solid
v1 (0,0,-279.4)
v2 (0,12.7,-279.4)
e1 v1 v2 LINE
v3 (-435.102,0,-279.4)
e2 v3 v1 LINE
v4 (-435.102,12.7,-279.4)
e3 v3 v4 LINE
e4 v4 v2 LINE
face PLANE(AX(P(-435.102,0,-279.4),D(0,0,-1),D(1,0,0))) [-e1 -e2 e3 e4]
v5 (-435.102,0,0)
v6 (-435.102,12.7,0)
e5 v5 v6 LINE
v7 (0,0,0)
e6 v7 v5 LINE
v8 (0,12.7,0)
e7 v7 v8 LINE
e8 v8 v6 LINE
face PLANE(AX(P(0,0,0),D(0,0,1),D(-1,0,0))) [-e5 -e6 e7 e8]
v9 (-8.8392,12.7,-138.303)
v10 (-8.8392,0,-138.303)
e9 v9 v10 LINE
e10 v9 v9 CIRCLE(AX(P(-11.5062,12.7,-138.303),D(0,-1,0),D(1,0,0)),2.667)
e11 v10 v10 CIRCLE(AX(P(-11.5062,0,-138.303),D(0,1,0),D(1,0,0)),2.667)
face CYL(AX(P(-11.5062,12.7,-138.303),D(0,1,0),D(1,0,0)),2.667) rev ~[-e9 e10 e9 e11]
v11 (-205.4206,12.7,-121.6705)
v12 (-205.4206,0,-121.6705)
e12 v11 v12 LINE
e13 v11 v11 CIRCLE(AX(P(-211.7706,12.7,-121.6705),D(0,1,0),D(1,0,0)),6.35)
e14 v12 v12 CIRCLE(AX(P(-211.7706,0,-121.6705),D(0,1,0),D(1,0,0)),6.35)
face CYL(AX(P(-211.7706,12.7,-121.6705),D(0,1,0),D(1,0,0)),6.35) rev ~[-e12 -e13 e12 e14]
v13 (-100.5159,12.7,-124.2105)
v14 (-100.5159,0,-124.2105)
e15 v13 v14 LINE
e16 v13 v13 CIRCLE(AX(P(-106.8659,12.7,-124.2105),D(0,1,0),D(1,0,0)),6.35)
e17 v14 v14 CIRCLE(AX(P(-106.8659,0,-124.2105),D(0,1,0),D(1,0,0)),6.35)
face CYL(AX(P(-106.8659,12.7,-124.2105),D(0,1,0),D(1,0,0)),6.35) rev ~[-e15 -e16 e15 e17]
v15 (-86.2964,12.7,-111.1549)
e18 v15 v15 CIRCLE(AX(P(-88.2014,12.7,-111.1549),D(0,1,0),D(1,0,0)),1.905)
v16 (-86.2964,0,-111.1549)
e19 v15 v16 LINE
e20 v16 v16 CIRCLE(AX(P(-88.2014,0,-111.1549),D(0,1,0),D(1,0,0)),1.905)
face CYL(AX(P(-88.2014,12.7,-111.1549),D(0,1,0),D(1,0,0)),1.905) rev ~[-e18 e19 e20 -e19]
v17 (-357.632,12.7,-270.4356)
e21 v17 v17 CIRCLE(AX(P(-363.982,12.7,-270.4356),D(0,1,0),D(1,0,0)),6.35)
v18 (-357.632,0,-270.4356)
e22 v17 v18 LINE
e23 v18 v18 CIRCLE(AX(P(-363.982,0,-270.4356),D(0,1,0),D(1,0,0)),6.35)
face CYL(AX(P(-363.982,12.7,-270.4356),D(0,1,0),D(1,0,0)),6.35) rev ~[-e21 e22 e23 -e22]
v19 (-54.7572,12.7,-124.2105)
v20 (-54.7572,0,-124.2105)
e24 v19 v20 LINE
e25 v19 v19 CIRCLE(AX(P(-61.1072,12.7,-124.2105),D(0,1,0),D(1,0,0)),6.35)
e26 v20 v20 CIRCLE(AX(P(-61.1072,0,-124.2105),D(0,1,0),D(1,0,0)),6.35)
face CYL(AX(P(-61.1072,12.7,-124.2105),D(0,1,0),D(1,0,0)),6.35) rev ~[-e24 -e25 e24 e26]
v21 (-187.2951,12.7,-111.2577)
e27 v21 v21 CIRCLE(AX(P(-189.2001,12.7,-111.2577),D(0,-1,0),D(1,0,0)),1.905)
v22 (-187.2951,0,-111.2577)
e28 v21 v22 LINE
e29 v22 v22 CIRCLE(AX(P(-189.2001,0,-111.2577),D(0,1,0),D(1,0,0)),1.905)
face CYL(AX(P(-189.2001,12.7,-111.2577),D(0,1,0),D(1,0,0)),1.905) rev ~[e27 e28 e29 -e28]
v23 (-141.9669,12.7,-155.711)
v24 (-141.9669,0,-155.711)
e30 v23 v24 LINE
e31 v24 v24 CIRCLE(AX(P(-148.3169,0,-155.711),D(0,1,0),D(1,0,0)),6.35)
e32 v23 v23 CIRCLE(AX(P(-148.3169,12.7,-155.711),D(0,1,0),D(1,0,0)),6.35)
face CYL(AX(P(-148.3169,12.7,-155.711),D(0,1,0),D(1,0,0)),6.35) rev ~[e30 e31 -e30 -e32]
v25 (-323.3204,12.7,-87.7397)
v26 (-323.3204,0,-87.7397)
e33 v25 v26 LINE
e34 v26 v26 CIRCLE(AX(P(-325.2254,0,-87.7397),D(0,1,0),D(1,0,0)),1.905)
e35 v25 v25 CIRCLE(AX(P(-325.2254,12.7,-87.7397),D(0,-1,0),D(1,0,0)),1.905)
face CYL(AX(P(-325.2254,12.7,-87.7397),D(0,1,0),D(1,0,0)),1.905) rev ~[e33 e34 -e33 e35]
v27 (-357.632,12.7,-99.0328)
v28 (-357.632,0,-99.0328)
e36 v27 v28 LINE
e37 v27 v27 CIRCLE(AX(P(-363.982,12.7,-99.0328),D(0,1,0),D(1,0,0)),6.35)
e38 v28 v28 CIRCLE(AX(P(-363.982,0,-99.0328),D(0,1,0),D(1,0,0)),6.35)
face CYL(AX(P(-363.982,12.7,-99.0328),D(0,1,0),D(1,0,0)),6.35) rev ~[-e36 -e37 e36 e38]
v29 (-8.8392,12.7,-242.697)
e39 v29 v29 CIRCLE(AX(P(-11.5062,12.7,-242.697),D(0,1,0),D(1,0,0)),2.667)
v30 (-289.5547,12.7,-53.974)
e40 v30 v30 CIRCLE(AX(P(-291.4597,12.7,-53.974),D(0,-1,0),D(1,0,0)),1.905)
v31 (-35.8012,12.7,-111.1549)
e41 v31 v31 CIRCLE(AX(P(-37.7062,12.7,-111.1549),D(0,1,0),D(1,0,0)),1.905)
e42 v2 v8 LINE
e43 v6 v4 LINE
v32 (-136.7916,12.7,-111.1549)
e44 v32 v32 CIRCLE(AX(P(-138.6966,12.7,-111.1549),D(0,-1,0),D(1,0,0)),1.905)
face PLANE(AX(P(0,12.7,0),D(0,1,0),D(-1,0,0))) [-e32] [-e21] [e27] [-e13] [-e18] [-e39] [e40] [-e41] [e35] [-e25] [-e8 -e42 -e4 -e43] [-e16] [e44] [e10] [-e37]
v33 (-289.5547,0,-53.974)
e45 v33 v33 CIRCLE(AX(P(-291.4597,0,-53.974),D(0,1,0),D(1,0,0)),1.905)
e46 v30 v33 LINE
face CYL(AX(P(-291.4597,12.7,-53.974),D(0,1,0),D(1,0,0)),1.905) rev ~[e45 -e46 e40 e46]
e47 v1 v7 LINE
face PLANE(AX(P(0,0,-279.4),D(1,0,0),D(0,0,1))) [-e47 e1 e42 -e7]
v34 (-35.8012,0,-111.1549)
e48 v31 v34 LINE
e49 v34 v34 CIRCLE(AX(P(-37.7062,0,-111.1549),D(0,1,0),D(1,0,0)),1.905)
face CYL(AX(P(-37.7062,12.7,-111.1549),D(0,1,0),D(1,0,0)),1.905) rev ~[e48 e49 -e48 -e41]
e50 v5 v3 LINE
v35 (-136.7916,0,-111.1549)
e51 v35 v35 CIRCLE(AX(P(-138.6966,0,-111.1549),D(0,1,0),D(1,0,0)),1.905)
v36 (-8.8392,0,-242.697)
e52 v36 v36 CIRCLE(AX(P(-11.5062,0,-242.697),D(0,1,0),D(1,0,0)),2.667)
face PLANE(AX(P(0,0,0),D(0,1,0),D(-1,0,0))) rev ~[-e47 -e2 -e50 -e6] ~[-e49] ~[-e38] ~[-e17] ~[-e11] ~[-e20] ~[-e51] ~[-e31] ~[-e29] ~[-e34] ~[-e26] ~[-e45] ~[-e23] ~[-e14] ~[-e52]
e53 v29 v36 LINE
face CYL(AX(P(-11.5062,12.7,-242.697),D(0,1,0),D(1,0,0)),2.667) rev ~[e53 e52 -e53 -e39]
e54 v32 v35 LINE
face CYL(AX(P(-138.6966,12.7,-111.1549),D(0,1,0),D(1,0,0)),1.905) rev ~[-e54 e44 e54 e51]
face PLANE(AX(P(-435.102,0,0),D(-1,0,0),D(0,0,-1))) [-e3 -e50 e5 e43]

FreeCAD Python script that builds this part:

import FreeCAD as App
import Part
import Sketcher

V = App.Vector
Q = App.Units.Quantity

doc = App.newDocument("Part")
body = doc.addObject("PartDesign::Body", "Body")
body.AllowCompound = True

sketch1 = doc.addObject("Sketcher::SketchObject", "Sketch")
body.addObject(sketch1)
sketch1.AttachmentSupport = (doc.XZ_Plane, [""])
sketch1.MapMode = "FlatFace"
sketch1.addGeometry([
    Part.LineSegment(V(-435.102, 0, 0), V(0, 0, 0)),
    Part.LineSegment(V(0, 0, 0), V(0, -279.4, 0)),
    Part.LineSegment(V(0, -279.4, 0), V(-435.102, -279.4, 0)),
    Part.LineSegment(V(-435.102, -279.4, 0), V(-435.102, 0, 0)),
], False)
sketch1.addConstraint([
    Sketcher.Constraint("Coincident", 0, 2, 1, 1),
    Sketcher.Constraint("Coincident", 1, 2, 2, 1),
    Sketcher.Constraint("Coincident", 2, 2, 3, 1),
    Sketcher.Constraint("Coincident", 3, 2, 0, 1),
    Sketcher.Constraint("Horizontal", 0),
    Sketcher.Constraint("Vertical", 1),
    Sketcher.Constraint("Horizontal", 2),
    Sketcher.Constraint("Vertical", 3),
    Sketcher.Constraint("Coincident", 0, 2, -1, 1),
    Sketcher.Constraint("DistanceY", 1, 2, 1, 1, Q("11 in")),
    Sketcher.Constraint("DistanceX", 0, 1, 0, 2, Q("17.13 in")),
])
pad1 = doc.addObject("PartDesign::Pad", "Pad")
body.addObject(pad1)
pad1.Profile = sketch1
pad1.Length = Q("0.5 in")
pad1.Reversed = True

sketch2 = doc.addObject("Sketcher::SketchObject", "Sketch001")
body.addObject(sketch2)
sketch2.AttachmentSupport = (doc.XZ_Plane, [""])
sketch2.MapMode = "FlatFace"
sketch2.AttachmentOffset = App.Placement(V(0, 0, -0.5 * 25.4), App.Rotation())
sketch2.addGeometry([
    Part.Circle(V(-11.5062, -138.303, 0), V(0, 0, 1), 2.667),
    Part.Circle(V(-11.5062, -242.697, 0), V(0, 0, 1), 2.667),
], False)
sketch2.addConstraint([
    Sketcher.Constraint("Equal", 0, 1),
    Sketcher.Constraint("Vertical", 0, 3, 1, 3),
    Sketcher.Constraint("Diameter", 0, Q("0.21 in")),
    Sketcher.Constraint("DistanceX", 0, 3, -1, 1, Q("0.453 in")),
    Sketcher.Constraint("DistanceY", 1, 3, 0, 3, Q("4.11 in")),
    Sketcher.Constraint("DistanceY", 0, 3, -1, 1, Q("5.445 in")),
])
pocket1 = doc.addObject("PartDesign::Pocket", "Pocket")
body.addObject(pocket1)
pocket1.Profile = sketch2
pocket1.Length = Q("0.5 in")
pocket1.Reversed = True

sketch3 = doc.addObject("Sketcher::SketchObject", "Sketch002")
body.addObject(sketch3)
sketch3.AttachmentSupport = (doc.XZ_Plane, [""])
sketch3.MapMode = "FlatFace"
sketch3.AttachmentOffset = App.Placement(V(0, 0, -0.5 * 25.4), App.Rotation())
sketch3.addGeometry([
    Part.Circle(V(-228.6, -165.4048, 0), V(0, 0, 1), 1.905),
    Part.Circle(V(-276.352, -165.4048, 0), V(0, 0, 1), 1.905),
], False)
sketch3.addConstraint([
    Sketcher.Constraint("Equal", 0, 1),
    Sketcher.Constraint("Horizontal", 0, 3, 1, 3),
    Sketcher.Constraint("Diameter", 0, Q("0.15 in")),
    Sketcher.Constraint("DistanceX", 1, 3, 0, 3, Q("1.88 in")),
    Sketcher.Constraint("DistanceX", 0, 3, -1, 1, Q("9 in")),
    Sketcher.Constraint("DistanceY", 0, 3, -1, 1, Q("6.512 in")),
])
pocket2 = doc.addObject("PartDesign::Pocket", "Pocket001")
body.addObject(pocket2)
pocket2.Profile = sketch3
pocket2.Length = Q("1 in")
pocket2.Reversed = True

sketch4 = doc.addObject("Sketcher::SketchObject", "Sketch003")
body.addObject(sketch4)
sketch4.AttachmentSupport = (doc.XZ_Plane, [""])
sketch4.MapMode = "FlatFace"
sketch4.AttachmentOffset = App.Placement(V(0, 0, -0.5 * 25.4), App.Rotation())
sketch4.addGeometry(Part.Circle(V(-73.9111, -98.5347, 0), V(0, 0, 1), 1.9812), False)
sketch4.addConstraint([
    Sketcher.Constraint("Diameter", 0, Q("0.156 in")),
    Sketcher.Constraint("DistanceX", 0, 3, -1, 1, Q("73.911 mm")),
    Sketcher.Constraint("DistanceY", 0, 3, -1, 1, Q("98.5347 mm")),
])
pad2 = doc.addObject("PartDesign::Pad", "Pad001")
body.addObject(pad2)
pad2.Profile = sketch4
pad2.Length = Q("0.5 in")

sketch5 = doc.addObject("Sketcher::SketchObject", "Sketch004")
body.addObject(sketch5)
sketch5.AttachmentSupport = (doc.XZ_Plane, [""])
sketch5.MapMode = "FlatFace"
sketch5.AttachmentOffset = App.Placement(V(0, 0, -0.5 * 25.4), App.Rotation())
sketch5.addGeometry(Part.Circle(V(-189.4966, -96.5535, 0), V(0, 0, 1), 1.905), False)
sketch5.addConstraint([
    Sketcher.Constraint("Diameter", 0, Q("0.15 in")),
    Sketcher.Constraint("DistanceX", 0, 3, -1, 1, Q("7.4605 in")),
    Sketcher.Constraint("DistanceY", 0, 3, -1, 1, Q("96.5535 mm")),
])
pocket3 = doc.addObject("PartDesign::Pocket", "Pocket002")
body.addObject(pocket3)
pocket3.Profile = sketch5
pocket3.Length = Q("0.5 in")
pocket3.Reversed = True

sketch6 = doc.addObject("Sketcher::SketchObject", "Sketch005")
body.addObject(sketch6)
sketch6.AttachmentSupport = (doc.XZ_Plane, [""])
sketch6.MapMode = "FlatFace"
sketch6.AttachmentOffset = App.Placement(V(0, 0, -0.5 * 25.4), App.Rotation())
sketch6.addGeometry([
    Part.Circle(V(-111.9102, -274.9457, 0), V(0, 0, 1), 1.9812),
    Part.Circle(V(-50.2837, -276.9269, 0), V(0, 0, 1), 1.9812),
], False)
sketch6.addConstraint([
    Sketcher.Constraint("Equal", 0, 1),
    Sketcher.Constraint("Diameter", 0, Q("0.156 in")),
    Sketcher.Constraint("DistanceY", 1, 3, 0, 3, Q("0.078 in")),
    Sketcher.Constraint("DistanceX", 0, 3, -1, 1, Q("111.9102 mm")),
    Sketcher.Constraint("DistanceY", 0, 3, -1, 1, Q("274.9457 mm")),
    Sketcher.Constraint("DistanceX", 1, 3, -1, 1, Q("50.2837 mm")),
])
pad3 = doc.addObject("PartDesign::Pad", "Pad002")
body.addObject(pad3)
pad3.Profile = sketch6
pad3.Length = Q("0.5 in")

sketch7 = doc.addObject("Sketcher::SketchObject", "Sketch006")
body.addObject(sketch7)
sketch7.AttachmentSupport = (doc.XZ_Plane, [""])
sketch7.MapMode = "FlatFace"
sketch7.AttachmentOffset = App.Placement(V(0, 0, -0.5 * 25.4), App.Rotation())
sketch7.addGeometry([
    Part.Circle(V(-138.6966, -273.3548, 0), V(0, 0, 1), 1.905),
    Part.Circle(V(-189.4966, -273.3548, 0), V(0, 0, 1), 1.905),
], False)
sketch7.addConstraint([
    Sketcher.Constraint("Equal", 0, 1),
    Sketcher.Constraint("Horizontal", 0, 3, 1, 3),
    Sketcher.Constraint("Diameter", 0, Q("0.15 in")),
    Sketcher.Constraint("DistanceX", 1, 3, 0, 3, Q("2 in")),
    Sketcher.Constraint("DistanceY", 0, 3, -1, 1, Q("10.762 in")),
    Sketcher.Constraint("DistanceX", 0, 3, -1, 1, Q("5.4605 in")),
])
pocket4 = doc.addObject("PartDesign::Pocket", "Pocket003")
body.addObject(pocket4)
pocket4.Profile = sketch7
pocket4.Length = Q("0.5 in")
pocket4.Reversed = True

sketch8 = doc.addObject("Sketcher::SketchObject", "Sketch007")
body.addObject(sketch8)
sketch8.AttachmentSupport = (doc.XZ_Plane, [""])
sketch8.MapMode = "FlatFace"
sketch8.addGeometry([
    Part.Circle(V(-189.4966, -273.3548, 0), V(0, 0, 1), 1.905),
    Part.Circle(V(-138.6966, -273.3548, 0), V(0, 0, 1), 1.905),
], False)
sketch8.addConstraint([
    Sketcher.Constraint("Equal", 0, 1),
    Sketcher.Constraint("Horizontal", 0, 3, 1, 3),
    Sketcher.Constraint("Diameter", 0, Q("0.15 in")),
    Sketcher.Constraint("DistanceX", 0, 3, 1, 3, Q("2 in")),
    Sketcher.Constraint("DistanceY", 0, 3, -1, 1, Q("10.762 in")),
    Sketcher.Constraint("DistanceX", 0, 3, -1, 1, Q("7.4605 in")),
])
pad4 = doc.addObject("PartDesign::Pad", "Pad003")
body.addObject(pad4)
pad4.Profile = sketch8
pad4.Length = Q("0.5 in")
pad4.Reversed = True

sketch9 = doc.addObject("Sketcher::SketchObject", "Sketch008")
body.addObject(sketch9)
sketch9.AttachmentSupport = (doc.XZ_Plane, [""])
sketch9.MapMode = "FlatFace"
sketch9.AttachmentOffset = App.Placement(V(0, 0, -0.5 * 25.4), App.Rotation())
sketch9.addGeometry([
    Part.Circle(V(-301.5668, -273.3548, 0), V(0, 0, 1), 1.905),
    Part.Circle(V(-253.8148, -273.3548, 0), V(0, 0, 1), 1.905),
], False)
sketch9.addConstraint([
    Sketcher.Constraint("Equal", 0, 1),
    Sketcher.Constraint("Horizontal", 0, 3, 1, 3),
    Sketcher.Constraint("Diameter", 0, Q("0.15 in")),
    Sketcher.Constraint("DistanceX", 0, 3, 1, 3, Q("1.88 in")),
    Sketcher.Constraint("DistanceY", 0, 3, -1, 1, Q("10.762 in")),
    Sketcher.Constraint("DistanceX", 0, 3, -1, 1, Q("11.8727 in")),
])
pocket5 = doc.addObject("PartDesign::Pocket", "Pocket004")
body.addObject(pocket5)
pocket5.Profile = sketch9
pocket5.Length = Q("0.5 in")
pocket5.Reversed = True

sketch10 = doc.addObject("Sketcher::SketchObject", "Sketch009")
body.addObject(sketch10)
sketch10.AttachmentSupport = (doc.XZ_Plane, [""])
sketch10.MapMode = "FlatFace"
sketch10.AttachmentOffset = App.Placement(V(0, 0, -0.5 * 25.4), App.Rotation())
sketch10.addGeometry([
    Part.Circle(V(-228.6, -165.4048, 0), V(0, 0, 1), 1.905),
    Part.Circle(V(-276.352, -165.4048, 0), V(0, 0, 1), 1.905),
], False)
sketch10.addConstraint([
    Sketcher.Constraint("Equal", 0, 1),
    Sketcher.Constraint("Horizontal", 0, 3, 1, 3),
    Sketcher.Constraint("Diameter", 0, Q("0.15 in")),
    Sketcher.Constraint("DistanceX", 0, 3, -1, 1, Q("9 in")),
    Sketcher.Constraint("DistanceX", 1, 3, -1, 1, Q("10.88 in")),
    Sketcher.Constraint("DistanceY", 0, 3, -1, 1, Q("6.512 in")),
])
pad5 = doc.addObject("PartDesign::Pad", "Pad004")
body.addObject(pad5)
pad5.Profile = sketch10
pad5.Length = Q("0.5 in")

sketch11 = doc.addObject("Sketcher::SketchObject", "Sketch010")
body.addObject(sketch11)
sketch11.AttachmentSupport = (doc.XZ_Plane, [""])
sketch11.MapMode = "FlatFace"
sketch11.AttachmentOffset = App.Placement(V(0, 0, -0.5 * 25.4), App.Rotation())
sketch11.addGeometry([
    Part.Circle(V(-154.6206, -259.3143, 0), V(0, 0, 1), 6.35),
    Part.Circle(V(-199.1169, -258.3518, 0), V(0, 0, 1), 6.35),
    Part.Circle(V(-211.7706, -121.6705, 0), V(0, 0, 1), 6.35),
    Part.Circle(V(-148.3169, -155.711, 0), V(0, 0, 1), 6.35),
], False)
sketch11.addConstraint([
    Sketcher.Constraint("Equal", 0, 1),
    Sketcher.Constraint("Equal", 1, 2),
    Sketcher.Constraint("Equal", 2, 3),
    Sketcher.Constraint("Diameter", 0, Q("0.5 in")),
    Sketcher.Constraint("DistanceX", 1, 3, 3, 3, Q("2 in")),
    Sketcher.Constraint("DistanceX", 2, 3, 0, 3, Q("2.25 in")),
    Sketcher.Constraint("DistanceY", 0, 3, 1, 3, Q("0.0379 in")),
    Sketcher.Constraint("DistanceX", 0, 3, -1, 1, Q("154.6206 mm")),
    Sketcher.Constraint("DistanceY", 0, 3, -1, 1, Q("259.3143 mm")),
    Sketcher.Constraint("DistanceX", 1, 3, -1, 1, Q("199.117 mm")),
    Sketcher.Constraint("DistanceY", 2, 3, -1, 1, Q("121.6705 mm")),
    Sketcher.Constraint("DistanceY", 3, 3, -1, 1, Q("155.711 mm")),
])
pocket6 = doc.addObject("PartDesign::Pocket", "Pocket005")
body.addObject(pocket6)
pocket6.Profile = sketch11
pocket6.Length = Q("0.5 in")
pocket6.Reversed = True

sketch12 = doc.addObject("Sketcher::SketchObject", "Sketch011")
body.addObject(sketch12)
sketch12.AttachmentSupport = (doc.XZ_Plane, [""])
sketch12.MapMode = "FlatFace"
sketch12.AttachmentOffset = App.Placement(V(0, 0, -0.5 * 25.4), App.Rotation())
sketch12.addGeometry([
    Part.Circle(V(-363.982, -270.4356, 0), V(0, 0, 1), 6.35),
    Part.Circle(V(-363.982, -99.0328, 0), V(0, 0, 1), 6.35),
], False)
sketch12.addConstraint([
    Sketcher.Constraint("Equal", 0, 1),
    Sketcher.Constraint("Vertical", 0, 3, 1, 3),
    Sketcher.Constraint("Diameter", 0, Q("0.5 in")),
    Sketcher.Constraint("DistanceX", 0, 3, -1, 1, Q("14.33 in")),
    Sketcher.Constraint("DistanceY", 0, 3, -1, 1, Q("270.4356 mm")),
    Sketcher.Constraint("DistanceY", 1, 3, -1, 1, Q("99.0328 mm")),
])
pocket7 = doc.addObject("PartDesign::Pocket", "Pocket006")
body.addObject(pocket7)
pocket7.Profile = sketch12
pocket7.Length = Q("0.5 in")
pocket7.Reversed = True

sketch13 = doc.addObject("Sketcher::SketchObject", "Sketch012")
body.addObject(sketch13)
sketch13.AttachmentSupport = (doc.XZ_Plane, [""])
sketch13.MapMode = "FlatFace"
sketch13.AttachmentOffset = App.Placement(V(0, 0, -0.5 * 25.4), App.Rotation())
sketch13.addGeometry([
    Part.Circle(V(-138.6966, -111.1549, 0), V(0, 0, 1), 1.905),
    Part.Circle(V(-189.2001, -111.2577, 0), V(0, 0, 1), 1.905),
], False)
sketch13.addConstraint([
    Sketcher.Constraint("Equal", 0, 1),
    Sketcher.Constraint("Diameter", 0, Q("0.15 in")),
    Sketcher.Constraint("DistanceX", 0, 3, -1, 1, Q("5.4605 in")),
    Sketcher.Constraint("DistanceY", 0, 3, -1, 1, Q("111.155 mm")),
    Sketcher.Constraint("DistanceX", 1, 3, -1, 1, Q("189.2 mm")),
    Sketcher.Constraint("DistanceY", 1, 3, -1, 1, Q("111.2577 mm")),
])
pocket8 = doc.addObject("PartDesign::Pocket", "Pocket007")
body.addObject(pocket8)
pocket8.Profile = sketch13
pocket8.Length = Q("0.5 in")
pocket8.Reversed = True

sketch14 = doc.addObject("Sketcher::SketchObject", "Sketch013")
body.addObject(sketch14)
sketch14.AttachmentSupport = (doc.XZ_Plane, [""])
sketch14.MapMode = "FlatFace"
sketch14.AttachmentOffset = App.Placement(V(0, 0, -0.5 * 25.4), App.Rotation())
sketch14.addGeometry([
    Part.Circle(V(-138.6966, -289.5514, 0), V(0, 0, 1), 1.905),
    Part.Circle(V(-189.4966, -291.4564, 0), V(0, 0, 1), 1.905),
    Part.Circle(V(-253.8148, -273.3548, 0), V(0, 0, 1), 1.905),
    Part.Circle(V(-301.5668, -273.3548, 0), V(0, 0, 1), 1.905),
    Part.Circle(V(-189.4966, -96.5535, 0), V(0, 0, 1), 1.905),
    Part.Circle(V(-138.6966, -96.5535, 0), V(0, 0, 1), 1.9812),
], False)
sketch14.addConstraint([
    Sketcher.Constraint("Equal", 0, 1),
    Sketcher.Constraint("Equal", 1, 2),
    Sketcher.Constraint("Equal", 2, 3),
    Sketcher.Constraint("Equal", 3, 4),
    Sketcher.Constraint("Horizontal", 2, 3, 3, 3),
    Sketcher.Constraint("Horizontal", 4, 3, 5, 3),
    Sketcher.Constraint("Vertical", 1, 3, 4, 3),
    Sketcher.Constraint("Vertical", 0, 3, 5, 3),
    Sketcher.Constraint("Diameter", 0, Q("0.15 in")),
    Sketcher.Constraint("Diameter", 5, Q("0.156 in")),
    Sketcher.Constraint("DistanceX", 1, 3, 0, 3, Q("2 in")),
    Sketcher.Constraint("DistanceX", 3, 3, 2, 3, Q("1.88 in")),
    Sketcher.Constraint("DistanceY", 2, 3, -1, 1, Q("10.762 in")),
    Sketcher.Constraint("DistanceY", 1, 3, 0, 3, Q("0.075 in")),
    Sketcher.Constraint("DistanceX", 0, 3, -1, 1, Q("5.4605 in")),
    Sketcher.Constraint("DistanceX", 2, 3, -1, 1, Q("9.9927 in")),
    Sketcher.Constraint("DistanceY", 0, 3, -1, 1, Q("289.5514 mm")),
    Sketcher.Constraint("DistanceY", 4, 3, -1, 1, Q("96.5535 mm")),
])
pad6 = doc.addObject("PartDesign::Pad", "Pad005")
body.addObject(pad6)
pad6.Profile = sketch14
pad6.Length = Q("0.5 in")

sketch15 = doc.addObject("Sketcher::SketchObject", "Sketch014")
body.addObject(sketch15)
sketch15.AttachmentSupport = (doc.XZ_Plane, [""])
sketch15.MapMode = "FlatFace"
sketch15.AttachmentOffset = App.Placement(V(0, 0, -0.5 * 25.4), App.Rotation())
sketch15.addGeometry([
    Part.Circle(V(-138.6966, -289.5514, 0), V(0, 0, 1), 1.905),
    Part.Circle(V(-189.4966, -291.4564, 0), V(0, 0, 1), 1.905),
], False)
sketch15.addConstraint([
    Sketcher.Constraint("Equal", 0, 1),
    Sketcher.Constraint("Diameter", 0, Q("0.15 in")),
    Sketcher.Constraint("DistanceX", 1, 3, 0, 3, Q("2 in")),
    Sketcher.Constraint("DistanceY", 1, 3, 0, 3, Q("0.075 in")),
    Sketcher.Constraint("DistanceX", 0, 3, -1, 1, Q("5.4605 in")),
    Sketcher.Constraint("DistanceY", 0, 3, -1, 1, Q("289.5514 mm")),
])
pocket9 = doc.addObject("PartDesign::Pocket", "Pocket008")
body.addObject(pocket9)
pocket9.Profile = sketch15
pocket9.Length = Q("0.5 in")
pocket9.Reversed = True

sketch16 = doc.addObject("Sketcher::SketchObject", "Sketch015")
body.addObject(sketch16)
sketch16.AttachmentSupport = (doc.XZ_Plane, [""])
sketch16.MapMode = "FlatFace"
sketch16.AttachmentOffset = App.Placement(V(0, 0, -0.5 * 25.4), App.Rotation())
sketch16.addGeometry([
    Part.Circle(V(-325.2254, -87.7397, 0), V(0, 0, 1), 1.905),
    Part.Circle(V(-291.4597, -53.974, 0), V(0, 0, 1), 1.905),
], False)
sketch16.addConstraint([
    Sketcher.Constraint("Equal", 0, 1),
    Sketcher.Constraint("Diameter", 0, Q("0.15 in")),
    Sketcher.Constraint("DistanceX", 1, 3, -1, 1, Q("11.4748 in")),
    Sketcher.Constraint("DistanceX", 0, 3, -1, 1, Q("325.2254 mm")),
    Sketcher.Constraint("DistanceY", 0, 3, -1, 1, Q("87.7397 mm")),
    Sketcher.Constraint("DistanceY", 1, 3, -1, 1, Q("53.974 mm")),
])
pocket10 = doc.addObject("PartDesign::Pocket", "Pocket009")
body.addObject(pocket10)
pocket10.Profile = sketch16
pocket10.Length = Q("0.5 in")
pocket10.Reversed = True

sketch17 = doc.addObject("Sketcher::SketchObject", "Sketch016")
body.addObject(sketch17)
sketch17.AttachmentSupport = (doc.XZ_Plane, [""])
sketch17.MapMode = "FlatFace"
sketch17.AttachmentOffset = App.Placement(V(0, 0, -0.5 * 25.4), App.Rotation())
sketch17.addGeometry([
    Part.Circle(V(-88.2014, -111.1549, 0), V(0, 0, 1), 1.905),
    Part.Circle(V(-37.7062, -111.1549, 0), V(0, 0, 1), 1.905),
], False)
sketch17.addConstraint([
    Sketcher.Constraint("Equal", 0, 1),
    Sketcher.Constraint("Horizontal", 0, 3, 1, 3),
    Sketcher.Constraint("Diameter", 0, Q("0.15 in")),
    Sketcher.Constraint("DistanceX", 0, 3, 1, 3, Q("1.988 in")),
    Sketcher.Constraint("DistanceX", 0, 3, -1, 1, Q("3.4725 in")),
    Sketcher.Constraint("DistanceY", 0, 3, -1, 1, Q("111.155 mm")),
])
pocket11 = doc.addObject("PartDesign::Pocket", "Pocket010")
body.addObject(pocket11)
pocket11.Profile = sketch17
pocket11.Length = Q("0.5 in")
pocket11.Reversed = True

sketch18 = doc.addObject("Sketcher::SketchObject", "Sketch017")
body.addObject(sketch18)
sketch18.AttachmentSupport = (doc.XZ_Plane, [""])
sketch18.MapMode = "FlatFace"
sketch18.AttachmentOffset = App.Placement(V(0, 0, -0.5 * 25.4), App.Rotation())
sketch18.addGeometry([
    Part.Circle(V(-106.8659, -124.2105, 0), V(0, 0, 1), 6.35),
    Part.Circle(V(-61.1072, -124.2105, 0), V(0, 0, 1), 6.35),
], False)
sketch18.addConstraint([
    Sketcher.Constraint("Equal", 0, 1),
    Sketcher.Constraint("Horizontal", 0, 3, 1, 3),
    Sketcher.Constraint("Diameter", 0, Q("0.5 in")),
    Sketcher.Constraint("DistanceX", 1, 3, -1, 1, Q("2.4058 in")),
    Sketcher.Constraint("DistanceX", 0, 3, -1, 1, Q("106.866 mm")),
    Sketcher.Constraint("DistanceY", 0, 3, -1, 1, Q("124.2105 mm")),
])
pocket12 = doc.addObject("PartDesign::Pocket", "Pocket011")
body.addObject(pocket12)
pocket12.Profile = sketch18
pocket12.Length = Q("0.5 in")
pocket12.Reversed = True

sketch19 = doc.addObject("Sketcher::SketchObject", "Sketch018")
body.addObject(sketch19)
sketch19.AttachmentSupport = (doc.XZ_Plane, [""])
sketch19.MapMode = "FlatFace"
sketch19.AttachmentOffset = App.Placement(V(0, 0, -0.5 * 25.4), App.Rotation())
sketch19.addGeometry([
    Part.Circle(V(-199.1169, -258.3518, 0), V(0, 0, 1), 6.35),
    Part.Circle(V(-154.6206, -259.3143, 0), V(0, 0, 1), 6.35),
], False)
sketch19.addConstraint([
    Sketcher.Constraint("Equal", 0, 1),
    Sketcher.Constraint("Diameter", 0, Q("0.5 in")),
    Sketcher.Constraint("DistanceY", 1, 3, 0, 3, Q("0.0379 in")),
    Sketcher.Constraint("DistanceX", 0, 3, -1, 1, Q("199.117 mm")),
    Sketcher.Constraint("DistanceY", 0, 3, -1, 1, Q("258.3518 mm")),
    Sketcher.Constraint("DistanceX", 1, 3, -1, 1, Q("154.6206 mm")),
])
pad7 = doc.addObject("PartDesign::Pad", "Pad006")
body.addObject(pad7)
pad7.Profile = sketch19
pad7.Length = Q("0.5 in")

doc.recompute()
